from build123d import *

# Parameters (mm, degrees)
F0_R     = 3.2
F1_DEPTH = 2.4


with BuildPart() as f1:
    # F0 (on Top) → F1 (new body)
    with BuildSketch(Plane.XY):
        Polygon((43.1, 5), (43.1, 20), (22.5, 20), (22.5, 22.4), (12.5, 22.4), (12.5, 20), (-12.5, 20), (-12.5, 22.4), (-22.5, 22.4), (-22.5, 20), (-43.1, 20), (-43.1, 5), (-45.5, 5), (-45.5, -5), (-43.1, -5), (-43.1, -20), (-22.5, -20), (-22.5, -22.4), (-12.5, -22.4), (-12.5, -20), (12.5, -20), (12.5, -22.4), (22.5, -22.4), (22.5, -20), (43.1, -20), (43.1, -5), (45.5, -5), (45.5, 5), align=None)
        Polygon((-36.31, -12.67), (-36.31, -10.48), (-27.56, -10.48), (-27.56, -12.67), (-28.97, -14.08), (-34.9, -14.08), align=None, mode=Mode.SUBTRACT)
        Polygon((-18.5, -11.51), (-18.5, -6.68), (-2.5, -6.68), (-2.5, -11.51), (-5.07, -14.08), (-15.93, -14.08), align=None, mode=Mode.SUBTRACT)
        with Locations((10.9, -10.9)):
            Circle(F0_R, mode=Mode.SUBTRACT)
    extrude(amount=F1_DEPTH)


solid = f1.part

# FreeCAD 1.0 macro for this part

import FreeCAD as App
import Part
import Sketcher

doc = App.newDocument("Part")
params = doc.addObject("Spreadsheet::Sheet", "Params")
for row, (alias, value) in enumerate([
    ("sketch1_diameter", "6.4 mm"),
    ("sketch1_width", "10 mm"),
    ("sketch1_width2", "25 mm"),
    ("sketch1_width3", "16 mm"),
    ("sketch1_height", "15 mm"),
    ("pad1_length", "2.4 mm"),
], start=1):
    params.set(f"A{row}", alias)
    params.set(f"B{row}", "=" + value)
    params.setAlias(f"B{row}", alias)

body = doc.addObject("PartDesign::Body", "Body")

# Sketch on XY plane
sketch1 = body.newObject("Sketcher::SketchObject", "Sketch")
sketch1.AttachmentSupport = (doc.getObject("XY_Plane"), [""])
sketch1.MapMode = "FlatFace"
sketch1.addGeometry(Part.LineSegment(App.Vector(43.1, 5, 0), App.Vector(43.1, 20, 0)), False)
sketch1.addGeometry(Part.LineSegment(App.Vector(43.1, 20, 0), App.Vector(22.5, 20, 0)), False)
sketch1.addGeometry(Part.LineSegment(App.Vector(22.5, 20, 0), App.Vector(22.5, 22.4, 0)), False)
sketch1.addGeometry(Part.LineSegment(App.Vector(22.5, 22.4, 0), App.Vector(12.5, 22.4, 0)), False)
sketch1.addGeometry(Part.LineSegment(App.Vector(12.5, 22.4, 0), App.Vector(12.5, 20, 0)), False)
sketch1.addGeometry(Part.LineSegment(App.Vector(12.5, 20, 0), App.Vector(-12.5, 20, 0)), False)
sketch1.addGeometry(Part.LineSegment(App.Vector(-12.5, 20, 0), App.Vector(-12.5, 22.4, 0)), False)
sketch1.addGeometry(Part.LineSegment(App.Vector(-12.5, 22.4, 0), App.Vector(-22.5, 22.4, 0)), False)
sketch1.addGeometry(Part.LineSegment(App.Vector(-22.5, 22.4, 0), App.Vector(-22.5, 20, 0)), False)
sketch1.addGeometry(Part.LineSegment(App.Vector(-22.5, 20, 0), App.Vector(-43.1, 20, 0)), False)
sketch1.addGeometry(Part.LineSegment(App.Vector(-43.1, 20, 0), App.Vector(-43.1, 5, 0)), False)
sketch1.addGeometry(Part.LineSegment(App.Vector(-43.1, 5, 0), App.Vector(-45.5, 5, 0)), False)
sketch1.addGeometry(Part.LineSegment(App.Vector(-45.5, 5, 0), App.Vector(-45.5, -5, 0)), False)
sketch1.addGeometry(Part.LineSegment(App.Vector(-45.5, -5, 0), App.Vector(-43.1, -5, 0)), False)
sketch1.addGeometry(Part.LineSegment(App.Vector(-43.1, -5, 0), App.Vector(-43.1, -20, 0)), False)
sketch1.addGeometry(Part.LineSegment(App.Vector(-43.1, -20, 0), App.Vector(-22.5, -20, 0)), False)
sketch1.addGeometry(Part.LineSegment(App.Vector(-22.5, -20, 0), App.Vector(-22.5, -22.4, 0)), False)
sketch1.addGeometry(Part.LineSegment(App.Vector(-22.5, -22.4, 0), App.Vector(-12.5, -22.4, 0)), False)
sketch1.addGeometry(Part.LineSegment(App.Vector(-12.5, -22.4, 0), App.Vector(-12.5, -20, 0)), False)
sketch1.addGeometry(Part.LineSegment(App.Vector(-12.5, -20, 0), App.Vector(12.5, -20, 0)), False)
sketch1.addGeometry(Part.LineSegment(App.Vector(12.5, -20, 0), App.Vector(12.5, -22.4, 0)), False)
sketch1.addGeometry(Part.LineSegment(App.Vector(12.5, -22.4, 0), App.Vector(22.5, -22.4, 0)), False)
sketch1.addGeometry(Part.LineSegment(App.Vector(22.5, -22.4, 0), App.Vector(22.5, -20, 0)), False)
sketch1.addGeometry(Part.LineSegment(App.Vector(22.5, -20, 0), App.Vector(43.1, -20, 0)), False)
sketch1.addGeometry(Part.LineSegment(App.Vector(43.1, -20, 0), App.Vector(43.1, -5, 0)), False)
sketch1.addGeometry(Part.LineSegment(App.Vector(43.1, -5, 0), App.Vector(45.5, -5, 0)), False)
sketch1.addGeometry(Part.LineSegment(App.Vector(45.5, -5, 0), App.Vector(45.5, 5, 0)), False)
sketch1.addGeometry(Part.LineSegment(App.Vector(45.5, 5, 0), App.Vector(43.1, 5, 0)), False)
sketch1.addGeometry(Part.LineSegment(App.Vector(-34.9, -14.1, 0), App.Vector(-36.3, -12.7, 0)), False)
sketch1.addGeometry(Part.LineSegment(App.Vector(-36.3, -12.7, 0), App.Vector(-36.3, -10.5, 0)), False)
sketch1.addGeometry(Part.LineSegment(App.Vector(-36.3, -10.5, 0), App.Vector(-27.6, -10.5, 0)), False)
sketch1.addGeometry(Part.LineSegment(App.Vector(-27.6, -10.5, 0), App.Vector(-27.6, -12.7, 0)), False)
sketch1.addGeometry(Part.LineSegment(App.Vector(-27.6, -12.7, 0), App.Vector(-29, -14.1, 0)), False)
sketch1.addGeometry(Part.LineSegment(App.Vector(-29, -14.1, 0), App.Vector(-34.9, -14.1, 0)), False)
sketch1.addGeometry(Part.Circle(App.Vector(10.9, -10.9, 0), App.Vector(0, 0, 1), 3.2), False)
sketch1.addGeometry(Part.LineSegment(App.Vector(-15.9, -14.1, 0), App.Vector(-18.5, -11.5, 0)), False)
sketch1.addGeometry(Part.LineSegment(App.Vector(-18.5, -11.5, 0), App.Vector(-18.5, -6.7, 0)), False)
sketch1.addGeometry(Part.LineSegment(App.Vector(-18.5, -6.7, 0), App.Vector(-2.5, -6.7, 0)), False)
sketch1.addGeometry(Part.LineSegment(App.Vector(-2.5, -6.7, 0), App.Vector(-2.5, -11.5, 0)), False)
sketch1.addGeometry(Part.LineSegment(App.Vector(-2.5, -11.5, 0), App.Vector(-5.1, -14.1, 0)), False)
sketch1.addGeometry(Part.LineSegment(App.Vector(-5.1, -14.1, 0), App.Vector(-15.9, -14.1, 0)), False)
sketch1.addConstraint(Sketcher.Constraint("Coincident", 0, 2, 1, 1))
sketch1.addConstraint(Sketcher.Constraint("Coincident", 1, 2, 2, 1))
sketch1.addConstraint(Sketcher.Constraint("Coincident", 2, 2, 3, 1))
sketch1.addConstraint(Sketcher.Constraint("Coincident", 3, 2, 4, 1))
sketch1.addConstraint(Sketcher.Constraint("Coincident", 4, 2, 5, 1))
sketch1.addConstraint(Sketcher.Constraint("Coincident", 5, 2, 6, 1))
sketch1.addConstraint(Sketcher.Constraint("Coincident", 6, 2, 7, 1))
sketch1.addConstraint(Sketcher.Constraint("Coincident", 7, 2, 8, 1))
sketch1.addConstraint(Sketcher.Constraint("Coincident", 8, 2, 9, 1))
sketch1.addConstraint(Sketcher.Constraint("Coincident", 9, 2, 10, 1))
sketch1.addConstraint(Sketcher.Constraint("Coincident", 10, 2, 11, 1))
sketch1.addConstraint(Sketcher.Constraint("Coincident", 11, 2, 12, 1))
sketch1.addConstraint(Sketcher.Constraint("Coincident", 12, 2, 13, 1))
sketch1.addConstraint(Sketcher.Constraint("Coincident", 13, 2, 14, 1))
sketch1.addConstraint(Sketcher.Constraint("Coincident", 14, 2, 15, 1))
sketch1.addConstraint(Sketcher.Constraint("Coincident", 15, 2, 16, 1))
sketch1.addConstraint(Sketcher.Constraint("Coincident", 16, 2, 17, 1))
sketch1.addConstraint(Sketcher.Constraint("Coincident", 17, 2, 18, 1))
sketch1.addConstraint(Sketcher.Constraint("Coincident", 18, 2, 19, 1))
sketch1.addConstraint(Sketcher.Constraint("Coincident", 19, 2, 20, 1))
sketch1.addConstraint(Sketcher.Constraint("Coincident", 20, 2, 21, 1))
sketch1.addConstraint(Sketcher.Constraint("Coincident", 21, 2, 22, 1))
sketch1.addConstraint(Sketcher.Constraint("Coincident", 22, 2, 23, 1))
sketch1.addConstraint(Sketcher.Constraint("Coincident", 23, 2, 24, 1))
sketch1.addConstraint(Sketcher.Constraint("Coincident", 24, 2, 25, 1))
sketch1.addConstraint(Sketcher.Constraint("Coincident", 25, 2, 26, 1))
sketch1.addConstraint(Sketcher.Constraint("Coincident", 26, 2, 27, 1))
sketch1.addConstraint(Sketcher.Constraint("Coincident", 27, 2, 0, 1))
sketch1.addConstraint(Sketcher.Constraint("Coincident", 28, 2, 29, 1))
sketch1.addConstraint(Sketcher.Constraint("Coincident", 29, 2, 30, 1))
sketch1.addConstraint(Sketcher.Constraint("Coincident", 30, 2, 31, 1))
sketch1.addConstraint(Sketcher.Constraint("Coincident", 31, 2, 32, 1))
sketch1.addConstraint(Sketcher.Constraint("Coincident", 32, 2, 33, 1))
sketch1.addConstraint(Sketcher.Constraint("Coincident", 33, 2, 28, 1))
sketch1.addConstraint(Sketcher.Constraint("Coincident", 35, 2, 36, 1))
sketch1.addConstraint(Sketcher.Constraint("Coincident", 36, 2, 37, 1))
sketch1.addConstraint(Sketcher.Constraint("Coincident", 37, 2, 38, 1))
sketch1.addConstraint(Sketcher.Constraint("Coincident", 38, 2, 39, 1))
sketch1.addConstraint(Sketcher.Constraint("Coincident", 39, 2, 40, 1))
sketch1.addConstraint(Sketcher.Constraint("Coincident", 40, 2, 35, 1))
sketch1.addConstraint(Sketcher.Constraint("Vertical", 0))
sketch1.addConstraint(Sketcher.Constraint("Horizontal", 1))
sketch1.addConstraint(Sketcher.Constraint("Vertical", 2))
sketch1.addConstraint(Sketcher.Constraint("Horizontal", 3))
sketch1.addConstraint(Sketcher.Constraint("Vertical", 4))
sketch1.addConstraint(Sketcher.Constraint("Horizontal", 5))
sketch1.addConstraint(Sketcher.Constraint("Vertical", 6))
sketch1.addConstraint(Sketcher.Constraint("Horizontal", 7))
sketch1.addConstraint(Sketcher.Constraint("Vertical", 8))
sketch1.addConstraint(Sketcher.Constraint("Horizontal", 9))
sketch1.addConstraint(Sketcher.Constraint("Vertical", 10))
sketch1.addConstraint(Sketcher.Constraint("Horizontal", 11))
sketch1.addConstraint(Sketcher.Constraint("Vertical", 12))
sketch1.addConstraint(Sketcher.Constraint("Horizontal", 13))
sketch1.addConstraint(Sketcher.Constraint("Vertical", 14))
sketch1.addConstraint(Sketcher.Constraint("Horizontal", 15))
sketch1.addConstraint(Sketcher.Constraint("Vertical", 16))
sketch1.addConstraint(Sketcher.Constraint("Horizontal", 17))
sketch1.addConstraint(Sketcher.Constraint("Vertical", 18))
sketch1.addConstraint(Sketcher.Constraint("Horizontal", 19))
sketch1.addConstraint(Sketcher.Constraint("Vertical", 20))
sketch1.addConstraint(Sketcher.Constraint("Horizontal", 21))
sketch1.addConstraint(Sketcher.Constraint("Vertical", 22))
sketch1.addConstraint(Sketcher.Constraint("Horizontal", 23))
sketch1.addConstraint(Sketcher.Constraint("Vertical", 24))
sketch1.addConstraint(Sketcher.Constraint("Horizontal", 25))
sketch1.addConstraint(Sketcher.Constraint("Vertical", 26))
sketch1.addConstraint(Sketcher.Constraint("Horizontal", 27))
sketch1.addConstraint(Sketcher.Constraint("Vertical", 29))
sketch1.addConstraint(Sketcher.Constraint("Horizontal", 30))
sketch1.addConstraint(Sketcher.Constraint("Vertical", 31))
sketch1.addConstraint(Sketcher.Constraint("Horizontal", 33))
sketch1.addConstraint(Sketcher.Constraint("Vertical", 36))
sketch1.addConstraint(Sketcher.Constraint("Horizontal", 37))
sketch1.addConstraint(Sketcher.Constraint("Vertical", 38))
sketch1.addConstraint(Sketcher.Constraint("Horizontal", 40))
sketch1.addConstraint(Sketcher.Constraint("Symmetric", 0, 2, 14, 2, -1, 1))
sketch1.addConstraint(Sketcher.Constraint("Symmetric", 2, 2, 16, 2, -1, 1))
sketch1.addConstraint(Sketcher.Constraint("Symmetric", 4, 2, 18, 2, -1, 1))
sketch1.addConstraint(Sketcher.Constraint("Symmetric", 6, 2, 20, 2, -1, 1))
sketch1.addConstraint(Sketcher.Constraint("Symmetric", 8, 2, 22, 2, -1, 1))
sketch1.addConstraint(Sketcher.Constraint("Symmetric", 10, 2, 24, 2, -1, 1))
sketch1.addConstraint(Sketcher.Constraint("Symmetric", 12, 2, 26, 2, -1, 1))
sketch1.addConstraint(Sketcher.Constraint("Symmetric", 3, 2, 6, 2, -2))
sketch1.addConstraint(Sketcher.Constraint("Symmetric", 1, 2, 8, 2, -2))
sketch1.addConstraint(Sketcher.Constraint("Symmetric", 13, 2, 24, 2, -2))
sketch1.addConstraint(Sketcher.Constraint("Perpendicular", 28, 32))
sketch1.addConstraint(Sketcher.Constraint("Perpendicular", 32, 35))
sketch1.addConstraint(Sketcher.Constraint("Perpendicular", 35, 39))
sketch1.addConstraint(Sketcher.Constraint("Horizontal", 1, 2, 4, 2))
sketch1.addConstraint(Sketcher.Constraint("Horizontal", 28, 2, 31, 2))
sketch1.addConstraint(Sketcher.Constraint("Horizontal", 35, 2, 38, 2))
sketch1.addConstraint(Sketcher.Constraint("Horizontal", 33, 2, 39, 2))
sketch1.addConstraint(Sketcher.Constraint("Equal", 27, 2))
sketch1.addConstraint(Sketcher.Constraint("Equal", 21, 12))
sketch1.addConstraint(Sketcher.Constraint("Equal", 28, 32))
sketch1.addConstraint(Sketcher.Constraint("Diameter", 34, 6.4))
sketch1.addConstraint(Sketcher.Constraint("DistanceX", 3, 2, 3, 1, 10.0))
sketch1.addConstraint(Sketcher.Constraint("DistanceX", 5, 2, 5, 1, 25.0))
sketch1.addConstraint(Sketcher.Constraint("DistanceX", 37, 1, 37, 2, 16.0))
sketch1.addConstraint(Sketcher.Constraint("DistanceY", 0, 1, 0, 2, 15.0))
sketch1.addConstraint(Sketcher.Constraint("DistanceX", 1, 2, 1, 1, 20.6))
sketch1.addConstraint(Sketcher.Constraint("DistanceX", 11, 2, 11, 1, 2.4))
sketch1.addConstraint(Sketcher.Constraint("DistanceX", 15, 2, 35, 2, 4.0))
sketch1.addConstraint(Sketcher.Constraint("DistanceX", 30, 1, 30, 2, 8.75))
sketch1.addConstraint(Sketcher.Constraint("DistanceX", 33, 2, 33, 1, 5.93))
sketch1.addConstraint(Sketcher.Constraint("DistanceX", 40, 2, 40, 1, 10.86))
sketch1.addConstraint(Sketcher.Constraint("DistanceY", 29, 1, 29, 2, 2.19))
sketch1.addConstraint(Sketcher.Constraint("DistanceY", 36, 1, 36, 2, 4.83))
sketch1.addConstraint(Sketcher.Constraint("DistanceX", -1, 1, 34, 3, 10.9))
sketch1.addConstraint(Sketcher.Constraint("DistanceY", 34, 3, -1, 1, 10.9))
sketch1.addConstraint(Sketcher.Constraint("DistanceX", 33, 2, -1, 1, 34.9))
sketch1.addConstraint(Sketcher.Constraint("DistanceY", 28, 2, -1, 1, 12.67))
sketch1.setExpression("Constraints[96]", "Params.sketch1_diameter")
sketch1.setExpression("Constraints[97]", "Params.sketch1_width")
sketch1.setExpression("Constraints[98]", "Params.sketch1_width2")
sketch1.setExpression("Constraints[99]", "Params.sketch1_width3")
sketch1.setExpression("Constraints[100]", "Params.sketch1_height")
pad1 = body.newObject("PartDesign::Pad", "Pad")
pad1.Profile = sketch1
pad1.setExpression("Length", "Params.pad1_length")

doc.recompute()
